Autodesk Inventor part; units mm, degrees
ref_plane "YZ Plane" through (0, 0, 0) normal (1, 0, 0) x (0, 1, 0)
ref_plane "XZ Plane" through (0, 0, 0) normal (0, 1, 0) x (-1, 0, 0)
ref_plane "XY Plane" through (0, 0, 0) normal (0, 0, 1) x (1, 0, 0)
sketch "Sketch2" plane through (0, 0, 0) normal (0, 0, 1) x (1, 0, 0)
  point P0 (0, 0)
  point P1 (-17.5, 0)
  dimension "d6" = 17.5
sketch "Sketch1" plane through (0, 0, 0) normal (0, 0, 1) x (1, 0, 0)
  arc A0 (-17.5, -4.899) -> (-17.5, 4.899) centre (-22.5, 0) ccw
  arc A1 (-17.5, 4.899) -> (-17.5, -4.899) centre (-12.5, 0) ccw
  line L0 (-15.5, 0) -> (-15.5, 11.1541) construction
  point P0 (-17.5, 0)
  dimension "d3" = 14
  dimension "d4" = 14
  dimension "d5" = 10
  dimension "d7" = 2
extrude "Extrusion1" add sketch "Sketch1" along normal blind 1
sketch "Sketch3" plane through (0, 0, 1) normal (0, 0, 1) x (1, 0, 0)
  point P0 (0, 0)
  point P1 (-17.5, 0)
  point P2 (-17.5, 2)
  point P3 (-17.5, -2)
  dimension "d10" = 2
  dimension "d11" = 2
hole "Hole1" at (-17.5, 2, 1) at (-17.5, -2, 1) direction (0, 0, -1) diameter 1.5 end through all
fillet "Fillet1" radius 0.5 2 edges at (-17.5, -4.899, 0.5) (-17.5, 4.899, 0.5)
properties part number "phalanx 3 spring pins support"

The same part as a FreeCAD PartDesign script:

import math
import FreeCAD as App
import Part
import Sketcher
from FreeCAD import Vector


def edges_at(feature, points):
    """Names of the edges that pass closest to the given points."""
    edges = feature.Shape.Edges
    near = lambda p: min(range(len(edges)), key=lambda i: edges[i].distToShape(Part.Vertex(*p))[0])
    return sorted({f"Edge{near(p) + 1}" for p in points})

doc = App.newDocument("Part")
body = doc.addObject("PartDesign::Body", "Body")

# Sketch on XY plane
sketch1 = doc.addObject("Sketcher::SketchObject", "Sketch")
body.addObject(sketch1)
sketch1.AttachmentSupport = (doc.XY_Plane, [""])
sketch1.MapMode = "FlatFace"
sketch1.addGeometry([
    Part.ArcOfCircle(Part.Circle(Vector(-12.5, 0, 0), Vector(0, 0, 1), 7.000014), math.radians(135.584571), math.radians(224.415429)),
    Part.ArcOfCircle(Part.Circle(Vector(-22.5, 0, 0), Vector(0, 0, 1), 7.000014), math.radians(-44.415429), math.radians(44.415429)),
], False)
sketch1.addConstraint([
    Sketcher.Constraint("Coincident", 0, 1, 1, 2),
    Sketcher.Constraint("Coincident", 1, 1, 0, 2),
    Sketcher.Constraint("Equal", 0, 1),
    Sketcher.Constraint("Symmetric", 0, 1, 1, 1, -1),
    Sketcher.Constraint("Radius", 0, 7.0),
    Sketcher.Constraint("DistanceX", 1, 3, 0, 3, 10.0),
    Sketcher.Constraint("DistanceX", 0, 3, -1, 1, 12.5),
])
pad1 = doc.addObject("PartDesign::Pad", "Pad")
body.addObject(pad1)
pad1.Profile = sketch1
pad1.Length = 1

# Sketch on XY plane
sketch2 = doc.addObject("Sketcher::SketchObject", "Sketch001")
body.addObject(sketch2)
sketch2.AttachmentSupport = (doc.XY_Plane, [""])
sketch2.MapMode = "FlatFace"
sketch2.AttachmentOffset = App.Placement(Vector(0, 0, 1), App.Rotation())
sketch2.addGeometry([
    Part.Circle(Vector(-17.5, 2, 0), Vector(0, 0, 1), 0.75),
    Part.Circle(Vector(-17.5, -2, 0), Vector(0, 0, 1), 0.75),
], False)
sketch2.addConstraint([
    Sketcher.Constraint("Equal", 0, 1),
    Sketcher.Constraint("Symmetric", 0, 3, 1, 3, -1),
    Sketcher.Constraint("Diameter", 0, 1.5),
    Sketcher.Constraint("DistanceY", -1, 1, 0, 3, 2.0),
    Sketcher.Constraint("DistanceX", 0, 3, -1, 1, 17.5),
])
doc.recompute()
hole = doc.addObject("PartDesign::Hole", "Hole")
body.addObject(hole)
hole.Profile = sketch2
hole.ThreadType = "None"
hole.Diameter = 1.5
hole.DepthType = "ThroughAll"
doc.recompute()

fillet = doc.addObject("PartDesign::Fillet", "Fillet")
body.addObject(fillet)
fillet.Base = (hole, edges_at(hole, [(-17.5, -4.899, 0.5), (-17.5, 4.899, 0.5)]))
fillet.Radius = 0.5

doc.recompute()
